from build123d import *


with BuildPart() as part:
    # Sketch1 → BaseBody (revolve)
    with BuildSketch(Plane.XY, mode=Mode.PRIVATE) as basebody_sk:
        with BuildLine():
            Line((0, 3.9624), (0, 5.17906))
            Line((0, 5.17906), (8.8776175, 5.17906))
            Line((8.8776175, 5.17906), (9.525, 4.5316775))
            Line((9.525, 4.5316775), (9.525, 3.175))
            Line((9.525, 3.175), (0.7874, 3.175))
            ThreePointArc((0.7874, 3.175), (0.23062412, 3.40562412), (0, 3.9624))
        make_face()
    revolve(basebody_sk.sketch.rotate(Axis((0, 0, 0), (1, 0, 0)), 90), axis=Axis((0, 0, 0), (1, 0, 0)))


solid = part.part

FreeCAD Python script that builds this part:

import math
import FreeCAD as App
import Part
import Sketcher
Q = App.Units.Quantity

doc = App.newDocument("Part")
params = doc.addObject("Spreadsheet::Sheet", "Params")
for row, (alias, value) in enumerate([
    ("sketch1_radius", "0.031 in"),
    ("sketch1_width", "0.344 in"),
    ("revolution_angle", "360 deg"),
], start=1):
    params.set(f"A{row}", alias)
    params.set(f"B{row}", "=" + value)
    params.setAlias(f"B{row}", alias)

body = doc.addObject("PartDesign::Body", "Body")

sketch1 = body.newObject("Sketcher::SketchObject", "Sketch")
sketch1.AttachmentSupport = (doc.getObject("XY_Plane"), [""])
sketch1.MapMode = "FlatFace"
sketch1.addGeometry([
    Part.LineSegment(App.Vector(0, 5.17906, 0), App.Vector(0, 3.9624, 0)),
    Part.ArcOfCircle(Part.Circle(App.Vector(0.7874, 3.9624, 0), App.Vector(0, 0, 1), 0.7874), math.radians(180), math.radians(270)),
    Part.LineSegment(App.Vector(0.7874, 3.175, 0), App.Vector(9.525, 3.175, 0)),
    Part.LineSegment(App.Vector(9.525, 3.175, 0), App.Vector(9.525, 4.531677, 0)),
    Part.LineSegment(App.Vector(9.525, 4.531677, 0), App.Vector(8.877617, 5.17906, 0)),
    Part.LineSegment(App.Vector(8.877617, 5.17906, 0), App.Vector(0, 5.17906, 0)),
], False)
sketch1.addConstraint([
    Sketcher.Constraint("Tangent", 0, 2, 1, 1),
    Sketcher.Constraint("Tangent", 1, 2, 2, 1),
    Sketcher.Constraint("Coincident", 2, 2, 3, 1),
    Sketcher.Constraint("Coincident", 3, 2, 4, 1),
    Sketcher.Constraint("Coincident", 4, 2, 5, 1),
    Sketcher.Constraint("Coincident", 5, 2, 0, 1),
    Sketcher.Constraint("Vertical", 0),
    Sketcher.Constraint("Horizontal", 2),
    Sketcher.Constraint("Vertical", 3),
    Sketcher.Constraint("Horizontal", 5),
    Sketcher.Constraint("PointOnObject", 0, 2, -2),
    Sketcher.Constraint("Angle", 4, Q("135 deg")),
    Sketcher.Constraint("Radius", 1, Q("0.031 in")),
    Sketcher.Constraint("DistanceX", 2, 1, 2, 2, Q("0.344 in")),
    Sketcher.Constraint("DistanceY", 0, 2, 0, 1, Q("0.0479 in")),
    Sketcher.Constraint("DistanceY", -1, 1, 1, 3, Q("0.156 in")),
    Sketcher.Constraint("DistanceX", 5, 2, 5, 1, Q("8.877617 mm")),
])
sketch1.setExpression("Constraints[12]", "Params.sketch1_radius")
sketch1.setExpression("Constraints[13]", "Params.sketch1_width")
revolution = body.newObject("PartDesign::Revolution", "Revolution")
revolution.Profile = sketch1
revolution.ReferenceAxis = (sketch1, ["H_Axis"])
revolution.setExpression("Angle", "Params.revolution_angle")

doc.recompute()
